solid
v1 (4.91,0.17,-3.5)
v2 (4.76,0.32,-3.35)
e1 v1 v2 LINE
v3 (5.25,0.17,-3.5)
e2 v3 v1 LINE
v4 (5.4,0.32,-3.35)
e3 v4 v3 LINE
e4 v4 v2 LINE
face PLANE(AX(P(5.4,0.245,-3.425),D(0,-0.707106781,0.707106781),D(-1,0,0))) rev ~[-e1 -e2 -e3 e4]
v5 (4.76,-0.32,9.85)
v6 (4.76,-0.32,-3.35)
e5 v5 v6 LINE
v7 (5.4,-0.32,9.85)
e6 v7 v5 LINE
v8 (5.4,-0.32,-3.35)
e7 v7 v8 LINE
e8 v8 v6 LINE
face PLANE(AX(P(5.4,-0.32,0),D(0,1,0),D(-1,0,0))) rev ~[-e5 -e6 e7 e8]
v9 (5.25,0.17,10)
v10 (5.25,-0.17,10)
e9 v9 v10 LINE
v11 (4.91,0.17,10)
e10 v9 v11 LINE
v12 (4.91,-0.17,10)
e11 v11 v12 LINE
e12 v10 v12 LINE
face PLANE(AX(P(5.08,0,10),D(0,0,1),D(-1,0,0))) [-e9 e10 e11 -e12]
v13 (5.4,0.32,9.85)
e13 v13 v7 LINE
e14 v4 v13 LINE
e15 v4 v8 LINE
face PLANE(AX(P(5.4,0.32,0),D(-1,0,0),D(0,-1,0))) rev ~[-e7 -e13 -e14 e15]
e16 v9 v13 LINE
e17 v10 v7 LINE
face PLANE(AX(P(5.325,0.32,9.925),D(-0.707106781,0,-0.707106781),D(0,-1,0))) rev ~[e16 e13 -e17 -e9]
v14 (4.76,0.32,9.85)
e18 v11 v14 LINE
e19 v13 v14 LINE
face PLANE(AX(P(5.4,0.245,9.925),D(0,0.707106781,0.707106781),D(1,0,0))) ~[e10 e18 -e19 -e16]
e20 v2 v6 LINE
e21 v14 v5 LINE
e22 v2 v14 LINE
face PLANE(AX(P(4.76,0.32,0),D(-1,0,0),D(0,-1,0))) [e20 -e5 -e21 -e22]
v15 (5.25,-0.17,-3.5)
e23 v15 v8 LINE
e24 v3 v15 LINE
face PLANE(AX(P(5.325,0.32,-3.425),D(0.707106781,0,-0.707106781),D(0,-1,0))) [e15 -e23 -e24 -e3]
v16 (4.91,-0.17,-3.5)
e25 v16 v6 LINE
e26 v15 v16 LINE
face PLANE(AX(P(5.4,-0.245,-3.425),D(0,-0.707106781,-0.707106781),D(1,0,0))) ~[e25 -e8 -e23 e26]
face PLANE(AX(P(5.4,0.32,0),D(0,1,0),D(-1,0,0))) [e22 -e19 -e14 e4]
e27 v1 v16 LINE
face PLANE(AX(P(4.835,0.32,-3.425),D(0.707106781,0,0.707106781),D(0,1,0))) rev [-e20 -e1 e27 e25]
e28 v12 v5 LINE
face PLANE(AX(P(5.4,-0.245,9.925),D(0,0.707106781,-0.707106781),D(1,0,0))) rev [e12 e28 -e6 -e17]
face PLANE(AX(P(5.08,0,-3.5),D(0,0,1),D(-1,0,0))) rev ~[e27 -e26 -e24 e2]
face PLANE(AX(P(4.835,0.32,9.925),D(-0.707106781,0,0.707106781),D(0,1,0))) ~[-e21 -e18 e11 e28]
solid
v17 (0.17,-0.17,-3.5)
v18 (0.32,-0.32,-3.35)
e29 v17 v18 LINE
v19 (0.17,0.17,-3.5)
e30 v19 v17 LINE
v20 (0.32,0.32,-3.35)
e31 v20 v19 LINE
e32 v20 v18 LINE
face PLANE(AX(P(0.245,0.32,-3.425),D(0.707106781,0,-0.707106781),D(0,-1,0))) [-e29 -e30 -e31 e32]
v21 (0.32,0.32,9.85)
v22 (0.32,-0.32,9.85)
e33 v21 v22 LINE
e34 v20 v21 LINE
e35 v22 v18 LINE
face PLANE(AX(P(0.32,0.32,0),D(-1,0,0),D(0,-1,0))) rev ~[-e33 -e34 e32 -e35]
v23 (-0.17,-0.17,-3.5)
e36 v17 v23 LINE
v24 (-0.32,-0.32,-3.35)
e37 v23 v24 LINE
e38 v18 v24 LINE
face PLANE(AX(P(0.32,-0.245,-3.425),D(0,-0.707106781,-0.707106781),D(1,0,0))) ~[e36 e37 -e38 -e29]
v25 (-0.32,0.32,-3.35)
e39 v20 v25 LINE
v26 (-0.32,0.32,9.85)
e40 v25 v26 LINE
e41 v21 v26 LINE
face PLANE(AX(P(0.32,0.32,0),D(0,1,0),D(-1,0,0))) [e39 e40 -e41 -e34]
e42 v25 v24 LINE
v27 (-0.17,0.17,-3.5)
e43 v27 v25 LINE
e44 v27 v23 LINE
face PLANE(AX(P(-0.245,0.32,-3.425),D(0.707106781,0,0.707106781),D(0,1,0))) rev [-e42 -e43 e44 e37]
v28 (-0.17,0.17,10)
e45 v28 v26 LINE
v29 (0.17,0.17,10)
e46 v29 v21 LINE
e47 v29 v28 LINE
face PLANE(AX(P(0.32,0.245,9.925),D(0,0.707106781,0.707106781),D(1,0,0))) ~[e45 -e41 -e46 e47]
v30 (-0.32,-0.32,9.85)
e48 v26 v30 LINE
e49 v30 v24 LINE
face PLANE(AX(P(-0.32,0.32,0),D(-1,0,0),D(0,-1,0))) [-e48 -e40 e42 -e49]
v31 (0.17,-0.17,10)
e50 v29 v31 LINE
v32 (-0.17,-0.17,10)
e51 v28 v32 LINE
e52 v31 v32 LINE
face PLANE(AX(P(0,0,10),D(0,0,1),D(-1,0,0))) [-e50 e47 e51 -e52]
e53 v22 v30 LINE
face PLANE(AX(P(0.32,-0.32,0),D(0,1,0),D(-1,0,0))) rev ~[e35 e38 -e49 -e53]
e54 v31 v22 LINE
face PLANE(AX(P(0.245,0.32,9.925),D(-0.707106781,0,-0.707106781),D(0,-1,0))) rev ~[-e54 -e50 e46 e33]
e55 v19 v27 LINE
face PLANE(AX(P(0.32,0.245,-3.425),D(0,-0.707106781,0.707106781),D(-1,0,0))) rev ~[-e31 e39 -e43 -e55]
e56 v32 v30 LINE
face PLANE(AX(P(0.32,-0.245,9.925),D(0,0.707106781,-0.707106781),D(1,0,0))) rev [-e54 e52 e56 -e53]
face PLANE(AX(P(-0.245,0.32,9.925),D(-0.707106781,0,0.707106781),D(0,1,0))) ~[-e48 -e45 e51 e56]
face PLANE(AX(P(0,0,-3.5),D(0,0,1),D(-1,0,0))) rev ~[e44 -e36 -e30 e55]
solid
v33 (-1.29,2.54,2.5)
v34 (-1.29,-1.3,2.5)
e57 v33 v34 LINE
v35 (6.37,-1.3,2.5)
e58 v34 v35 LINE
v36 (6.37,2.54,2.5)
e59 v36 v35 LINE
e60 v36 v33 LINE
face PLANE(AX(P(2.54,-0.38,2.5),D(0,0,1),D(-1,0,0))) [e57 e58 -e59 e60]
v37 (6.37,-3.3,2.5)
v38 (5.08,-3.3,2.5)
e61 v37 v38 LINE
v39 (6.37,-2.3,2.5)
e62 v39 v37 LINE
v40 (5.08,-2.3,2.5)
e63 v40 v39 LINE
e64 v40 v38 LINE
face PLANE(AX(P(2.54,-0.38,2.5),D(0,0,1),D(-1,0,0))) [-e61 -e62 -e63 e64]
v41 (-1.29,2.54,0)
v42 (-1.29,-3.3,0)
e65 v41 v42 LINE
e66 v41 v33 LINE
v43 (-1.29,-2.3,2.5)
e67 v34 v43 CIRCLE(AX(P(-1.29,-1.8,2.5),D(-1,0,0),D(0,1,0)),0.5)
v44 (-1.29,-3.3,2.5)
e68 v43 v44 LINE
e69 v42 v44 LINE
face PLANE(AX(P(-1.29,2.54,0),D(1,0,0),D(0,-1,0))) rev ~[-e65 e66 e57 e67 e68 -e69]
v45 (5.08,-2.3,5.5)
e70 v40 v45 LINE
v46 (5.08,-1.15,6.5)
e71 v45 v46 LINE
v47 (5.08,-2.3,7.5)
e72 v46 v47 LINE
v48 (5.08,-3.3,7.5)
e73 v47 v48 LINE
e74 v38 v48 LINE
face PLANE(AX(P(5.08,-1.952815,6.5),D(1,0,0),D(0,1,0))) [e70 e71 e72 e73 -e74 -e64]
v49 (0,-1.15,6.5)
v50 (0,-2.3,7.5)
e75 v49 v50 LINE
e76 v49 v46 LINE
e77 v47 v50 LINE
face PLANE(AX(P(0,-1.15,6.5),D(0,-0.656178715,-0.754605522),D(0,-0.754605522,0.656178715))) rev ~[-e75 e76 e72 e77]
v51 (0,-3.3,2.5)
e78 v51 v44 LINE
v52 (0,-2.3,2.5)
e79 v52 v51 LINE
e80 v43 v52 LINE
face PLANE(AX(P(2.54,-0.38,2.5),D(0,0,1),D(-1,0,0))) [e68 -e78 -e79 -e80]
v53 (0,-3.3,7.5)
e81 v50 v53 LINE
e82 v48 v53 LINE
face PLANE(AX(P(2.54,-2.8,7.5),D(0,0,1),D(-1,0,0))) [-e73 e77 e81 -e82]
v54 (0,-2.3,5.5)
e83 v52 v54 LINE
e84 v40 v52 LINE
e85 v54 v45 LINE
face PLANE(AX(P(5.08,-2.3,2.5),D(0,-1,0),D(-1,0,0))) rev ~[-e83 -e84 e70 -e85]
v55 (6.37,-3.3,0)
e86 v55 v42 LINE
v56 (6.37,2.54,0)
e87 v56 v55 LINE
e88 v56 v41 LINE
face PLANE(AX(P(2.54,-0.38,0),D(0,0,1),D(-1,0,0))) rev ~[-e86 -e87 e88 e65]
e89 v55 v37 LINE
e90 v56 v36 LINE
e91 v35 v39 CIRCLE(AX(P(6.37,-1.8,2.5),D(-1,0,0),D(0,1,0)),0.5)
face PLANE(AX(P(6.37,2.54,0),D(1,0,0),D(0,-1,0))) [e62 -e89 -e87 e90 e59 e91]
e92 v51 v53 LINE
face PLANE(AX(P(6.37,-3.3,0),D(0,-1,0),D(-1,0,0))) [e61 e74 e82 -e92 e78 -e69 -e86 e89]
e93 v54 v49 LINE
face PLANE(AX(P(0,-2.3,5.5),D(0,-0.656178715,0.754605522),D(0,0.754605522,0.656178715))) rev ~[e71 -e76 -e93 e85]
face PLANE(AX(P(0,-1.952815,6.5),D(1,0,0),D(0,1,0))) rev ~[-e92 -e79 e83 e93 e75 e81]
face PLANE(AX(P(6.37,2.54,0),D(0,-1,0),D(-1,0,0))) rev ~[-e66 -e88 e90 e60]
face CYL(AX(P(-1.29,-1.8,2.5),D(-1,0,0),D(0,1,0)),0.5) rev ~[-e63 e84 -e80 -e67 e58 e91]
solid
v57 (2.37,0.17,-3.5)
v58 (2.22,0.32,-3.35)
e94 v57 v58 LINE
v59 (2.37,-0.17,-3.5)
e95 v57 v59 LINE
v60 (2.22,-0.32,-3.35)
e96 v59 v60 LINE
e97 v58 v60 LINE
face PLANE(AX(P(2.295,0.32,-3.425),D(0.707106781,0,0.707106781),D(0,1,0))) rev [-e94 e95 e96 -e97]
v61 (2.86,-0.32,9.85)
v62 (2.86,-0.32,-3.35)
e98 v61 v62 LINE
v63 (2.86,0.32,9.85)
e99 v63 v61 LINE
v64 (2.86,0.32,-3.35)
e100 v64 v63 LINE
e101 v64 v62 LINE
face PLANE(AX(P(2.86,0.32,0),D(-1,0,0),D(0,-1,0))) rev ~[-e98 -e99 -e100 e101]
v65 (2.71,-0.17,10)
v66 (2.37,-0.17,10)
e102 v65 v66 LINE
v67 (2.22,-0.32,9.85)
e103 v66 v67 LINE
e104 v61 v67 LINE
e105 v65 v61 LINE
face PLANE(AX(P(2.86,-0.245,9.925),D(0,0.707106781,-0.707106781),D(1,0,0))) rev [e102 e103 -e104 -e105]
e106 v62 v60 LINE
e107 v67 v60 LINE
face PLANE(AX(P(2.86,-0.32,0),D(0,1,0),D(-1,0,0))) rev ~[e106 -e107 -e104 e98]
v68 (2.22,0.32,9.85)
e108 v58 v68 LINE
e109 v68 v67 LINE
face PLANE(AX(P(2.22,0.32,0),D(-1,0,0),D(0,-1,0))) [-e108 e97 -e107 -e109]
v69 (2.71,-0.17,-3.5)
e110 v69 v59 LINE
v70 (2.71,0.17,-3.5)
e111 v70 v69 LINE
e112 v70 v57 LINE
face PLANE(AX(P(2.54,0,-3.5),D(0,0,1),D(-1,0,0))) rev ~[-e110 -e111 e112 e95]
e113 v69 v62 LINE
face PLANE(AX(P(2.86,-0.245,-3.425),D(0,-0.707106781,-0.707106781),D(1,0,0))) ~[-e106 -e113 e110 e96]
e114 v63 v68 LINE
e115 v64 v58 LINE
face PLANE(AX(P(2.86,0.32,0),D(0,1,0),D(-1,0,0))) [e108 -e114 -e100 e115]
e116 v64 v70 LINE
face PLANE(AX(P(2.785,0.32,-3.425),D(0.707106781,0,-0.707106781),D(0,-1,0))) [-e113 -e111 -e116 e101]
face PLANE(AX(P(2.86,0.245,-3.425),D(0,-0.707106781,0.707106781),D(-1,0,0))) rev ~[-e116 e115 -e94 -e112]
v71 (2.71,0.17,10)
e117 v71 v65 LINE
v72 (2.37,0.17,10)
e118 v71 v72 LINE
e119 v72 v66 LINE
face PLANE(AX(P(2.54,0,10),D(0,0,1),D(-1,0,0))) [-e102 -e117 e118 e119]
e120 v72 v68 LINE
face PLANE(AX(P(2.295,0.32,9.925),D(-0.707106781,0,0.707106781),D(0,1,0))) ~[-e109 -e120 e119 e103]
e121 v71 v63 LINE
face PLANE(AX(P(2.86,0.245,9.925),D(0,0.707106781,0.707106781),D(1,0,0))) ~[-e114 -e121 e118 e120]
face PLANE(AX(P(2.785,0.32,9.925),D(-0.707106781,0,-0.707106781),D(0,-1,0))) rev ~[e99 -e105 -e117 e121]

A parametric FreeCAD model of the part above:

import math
import FreeCAD as App
import Part
import Sketcher
from FreeCAD import Vector


def edges_at(feature, points):
    """Names of the edges that pass closest to the given points."""
    edges = feature.Shape.Edges
    near = lambda p: min(range(len(edges)), key=lambda i: edges[i].distToShape(Part.Vertex(*p))[0])
    return sorted({f"Edge{near(p) + 1}" for p in points})


def add_polygon(sketch, points):
    """Adds a closed chain of lines whose ends are joined by coincident constraints."""
    first, n = sketch.GeometryCount, len(points)
    for a, b in zip(points, points[1:] + points[:1]):
        sketch.addGeometry(Part.LineSegment(App.Vector(*a, 0), App.Vector(*b, 0)), False)
    for i in range(n):
        sketch.addConstraint(Sketcher.Constraint("Coincident", first + i, 2, first + (i + 1) % n, 1))

doc = App.newDocument("Part")
body = doc.addObject("PartDesign::Body", "Body")

sketch1 = body.newObject("Sketcher::SketchObject", "Sketch")
sketch1.AttachmentSupport = (doc.getObject("XY_Plane"), [""])
sketch1.MapMode = "FlatFace"
add_polygon(sketch1, [(6.37, -3.3), (6.37, 2.54), (-1.29, 2.54), (-1.29, -3.3)])
sketch1.addConstraint(Sketcher.Constraint("Vertical", 0))
sketch1.addConstraint(Sketcher.Constraint("Horizontal", 1))
sketch1.addConstraint(Sketcher.Constraint("Vertical", 2))
sketch1.addConstraint(Sketcher.Constraint("Horizontal", 3))
sketch1.addConstraint(Sketcher.Constraint("DistanceX", 1, 2, 1, 1, 7.66))
sketch1.addConstraint(Sketcher.Constraint("DistanceY", 0, 1, 0, 2, 5.84))
sketch1.addConstraint(Sketcher.Constraint("DistanceY", 2, 2, -1, 1, 3.3))
sketch1.addConstraint(Sketcher.Constraint("DistanceX", -1, 1, 0, 2, 6.37))
pad1 = body.newObject("PartDesign::Pad", "Pad")
pad1.Profile = sketch1
pad1.Length = 2.5

sketch2 = body.newObject("Sketcher::SketchObject", "Sketch001")
sketch2.AttachmentSupport = (doc.getObject("XY_Plane"), [""])
sketch2.MapMode = "FlatFace"
sketch2.AttachmentOffset = App.Placement(Vector(0, 0, 2.5), App.Rotation())
add_polygon(sketch2, [(5.08, -3.3), (5.08, -2.3), (0, -2.3), (0, -3.3)])
sketch2.addConstraint(Sketcher.Constraint("Vertical", 0))
sketch2.addConstraint(Sketcher.Constraint("Horizontal", 1))
sketch2.addConstraint(Sketcher.Constraint("Vertical", 2))
sketch2.addConstraint(Sketcher.Constraint("Horizontal", 3))
sketch2.addConstraint(Sketcher.Constraint("PointOnObject", 1, 2, -2))
sketch2.addConstraint(Sketcher.Constraint("DistanceY", 0, 1, 0, 2, 1.0))
sketch2.addConstraint(Sketcher.Constraint("DistanceX", 1, 2, 1, 1, 5.08))
sketch2.addConstraint(Sketcher.Constraint("DistanceY", 0, 2, -1, 1, 2.3))
pad2 = body.newObject("PartDesign::Pad", "Pad001")
pad2.Profile = sketch2
pad2.Length = 5

sketch3 = body.newObject("Sketcher::SketchObject", "Sketch002")
sketch3.AttachmentSupport = (doc.getObject("YZ_Plane"), [""])
sketch3.MapMode = "FlatFace"
add_polygon(sketch3, [(-2.3, 5.5), (-2.3, 7.5), (-1.15, 6.5)])
sketch3.addConstraint(Sketcher.Constraint("Vertical", 0))
sketch3.addConstraint(Sketcher.Constraint("Equal", 1, 2))
sketch3.addConstraint(Sketcher.Constraint("DistanceY", 0, 1, 0, 2, 2.0))
sketch3.addConstraint(Sketcher.Constraint("DistanceX", 0, 2, -1, 1, 2.3))
sketch3.addConstraint(Sketcher.Constraint("DistanceY", -1, 1, 0, 2, 7.5))
sketch3.addConstraint(Sketcher.Constraint("DistanceX", 1, 2, -1, 1, 1.15))
pad3 = body.newObject("PartDesign::Pad", "Pad002")
pad3.Profile = sketch3
pad3.Length = 5.08

sketch4 = body.newObject("Sketcher::SketchObject", "Sketch003")
sketch4.AttachmentSupport = (doc.getObject("YZ_Plane"), [""])
sketch4.MapMode = "FlatFace"
sketch4.AttachmentOffset = App.Placement(Vector(0, 0, -1.29), App.Rotation())
sketch4.addGeometry(Part.ArcOfCircle(Part.Circle(Vector(-1.8, 2.5, 0), Vector(0, 0, 1), 0.5), math.radians(180), math.radians(360)), False)
sketch4.addGeometry(Part.LineSegment(Vector(-2.3, 2.5, 0), Vector(-1.3, 2.5, 0)), False)
sketch4.addConstraint(Sketcher.Constraint("Coincident", 0, 1, 1, 1))
sketch4.addConstraint(Sketcher.Constraint("Coincident", 1, 2, 0, 2))
sketch4.addConstraint(Sketcher.Constraint("Horizontal", 1))
sketch4.addConstraint(Sketcher.Constraint("Radius", 0, 0.5))
sketch4.addConstraint(Sketcher.Constraint("DistanceX", 0, 3, -1, 1, 1.8))
sketch4.addConstraint(Sketcher.Constraint("DistanceY", -1, 1, 0, 3, 2.5))
sketch4.addConstraint(Sketcher.Constraint("DistanceY", -1, 1, 0, 1, 2.5))
pocket1 = body.newObject("PartDesign::Pocket", "Pocket")
pocket1.Profile = sketch4
pocket1.Type = "ThroughAll"
pocket1.Reversed = True
body2 = doc.addObject("PartDesign::Body", "Body001")

sketch5 = body2.newObject("Sketcher::SketchObject", "Sketch004")
sketch5.AttachmentSupport = (doc.getObject("XY_Plane001"), [""])
sketch5.MapMode = "FlatFace"
add_polygon(sketch5, [(0.32, -0.32), (0.32, 0.32), (-0.32, 0.32), (-0.32, -0.32)])
sketch5.addConstraint(Sketcher.Constraint("Vertical", 0))
sketch5.addConstraint(Sketcher.Constraint("Horizontal", 1))
sketch5.addConstraint(Sketcher.Constraint("Vertical", 2))
sketch5.addConstraint(Sketcher.Constraint("Horizontal", 3))
sketch5.addConstraint(Sketcher.Constraint("Symmetric", 0, 2, 2, 2, -1, 1))
sketch5.addConstraint(Sketcher.Constraint("Equal", 3, 0))
sketch5.addConstraint(Sketcher.Constraint("DistanceX", 1, 2, 1, 1, 0.64))
pad4 = body2.newObject("PartDesign::Pad", "Pad003")
pad4.Profile = sketch5
pad4.Type = "TwoLengths"
pad4.Length = 10
pad4.Length2 = 3.5
doc.recompute()

chamfer = body2.newObject("PartDesign::Chamfer", "Chamfer")
chamfer.Base = (pad4, edges_at(pad4, [
    (0, -0.32, 10),
    (-0.32, 0, 10),
    (0, 0.32, 10),
    (0.32, 0, 10),
]))
chamfer.Size = 0.15
doc.recompute()

chamfer2 = body2.newObject("PartDesign::Chamfer", "Chamfer001")
chamfer2.Base = (chamfer, edges_at(chamfer, [
    (0, -0.32, -3.5),
    (-0.32, 0, -3.5),
    (0, 0.32, -3.5),
    (0.32, 0, -3.5),
]))
chamfer2.Size = 0.15
body3 = doc.addObject("PartDesign::Body", "Body002")

sketch6 = body3.newObject("Sketcher::SketchObject", "Sketch005")
sketch6.AttachmentSupport = (doc.getObject("XY_Plane002"), [""])
sketch6.MapMode = "FlatFace"
add_polygon(sketch6, [(2.86, -0.32), (2.86, 0.32), (2.22, 0.32), (2.22, -0.32)])
sketch6.addConstraint(Sketcher.Constraint("Vertical", 0))
sketch6.addConstraint(Sketcher.Constraint("Horizontal", 1))
sketch6.addConstraint(Sketcher.Constraint("Vertical", 2))
sketch6.addConstraint(Sketcher.Constraint("Horizontal", 3))
sketch6.addConstraint(Sketcher.Constraint("Equal", 3, 0))
sketch6.addConstraint(Sketcher.Constraint("DistanceX", 1, 2, 1, 1, 0.64))
sketch6.addConstraint(Sketcher.Constraint("DistanceX", -1, 1, 0, 2, 2.86))
sketch6.addConstraint(Sketcher.Constraint("DistanceY", -1, 1, 0, 2, 0.32))
pad5 = body3.newObject("PartDesign::Pad", "Pad004")
pad5.Profile = sketch6
pad5.Type = "TwoLengths"
pad5.Length = 10
pad5.Length2 = 3.5
doc.recompute()

chamfer3 = body3.newObject("PartDesign::Chamfer", "Chamfer002")
chamfer3.Base = (pad5, edges_at(pad5, [
    (2.54, -0.32, 10),
    (2.22, 0, 10),
    (2.54, 0.32, 10),
    (2.86, 0, 10),
]))
chamfer3.Size = 0.15
doc.recompute()

chamfer4 = body3.newObject("PartDesign::Chamfer", "Chamfer003")
chamfer4.Base = (chamfer3, edges_at(chamfer3, [
    (2.54, -0.32, -3.5),
    (2.22, 0, -3.5),
    (2.54, 0.32, -3.5),
    (2.86, 0, -3.5),
]))
chamfer4.Size = 0.15
body4 = doc.addObject("PartDesign::Body", "Body003")

sketch7 = body4.newObject("Sketcher::SketchObject", "Sketch006")
sketch7.AttachmentSupport = (doc.getObject("XY_Plane003"), [""])
sketch7.MapMode = "FlatFace"
add_polygon(sketch7, [(5.4, -0.32), (5.4, 0.32), (4.76, 0.32), (4.76, -0.32)])
sketch7.addConstraint(Sketcher.Constraint("Vertical", 0))
sketch7.addConstraint(Sketcher.Constraint("Horizontal", 1))
sketch7.addConstraint(Sketcher.Constraint("Vertical", 2))
sketch7.addConstraint(Sketcher.Constraint("Horizontal", 3))
sketch7.addConstraint(Sketcher.Constraint("Equal", 3, 0))
sketch7.addConstraint(Sketcher.Constraint("DistanceX", 1, 2, 1, 1, 0.64))
sketch7.addConstraint(Sketcher.Constraint("DistanceX", -1, 1, 0, 2, 5.4))
sketch7.addConstraint(Sketcher.Constraint("DistanceY", -1, 1, 0, 2, 0.32))
pad6 = body4.newObject("PartDesign::Pad", "Pad005")
pad6.Profile = sketch7
pad6.Type = "TwoLengths"
pad6.Length = 10
pad6.Length2 = 3.5
doc.recompute()

chamfer5 = body4.newObject("PartDesign::Chamfer", "Chamfer004")
chamfer5.Base = (pad6, edges_at(pad6, [
    (5.08, -0.32, 10),
    (4.76, 0, 10),
    (5.08, 0.32, 10),
    (5.4, 0, 10),
]))
chamfer5.Size = 0.15
doc.recompute()

chamfer6 = body4.newObject("PartDesign::Chamfer", "Chamfer005")
chamfer6.Base = (chamfer5, edges_at(chamfer5, [
    (5.08, -0.32, -3.5),
    (4.76, 0, -3.5),
    (5.08, 0.32, -3.5),
    (5.4, 0, -3.5),
]))
chamfer6.Size = 0.15

doc.recompute()
